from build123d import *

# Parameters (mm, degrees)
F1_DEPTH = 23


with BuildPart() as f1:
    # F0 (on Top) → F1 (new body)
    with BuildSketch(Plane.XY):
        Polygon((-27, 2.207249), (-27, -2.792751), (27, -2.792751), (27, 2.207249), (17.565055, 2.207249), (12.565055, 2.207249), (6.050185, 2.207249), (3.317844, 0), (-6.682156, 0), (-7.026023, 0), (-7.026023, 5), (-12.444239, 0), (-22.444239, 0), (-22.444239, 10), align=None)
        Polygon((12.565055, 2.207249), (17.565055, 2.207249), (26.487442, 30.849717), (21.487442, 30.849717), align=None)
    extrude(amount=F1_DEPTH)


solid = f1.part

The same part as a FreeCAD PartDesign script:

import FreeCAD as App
import Part
import Sketcher

V = App.Vector
Q = App.Units.Quantity


def add_polygon(sketch, points):
    """Adds a closed chain of lines whose ends are joined by coincident constraints."""
    first, n = sketch.GeometryCount, len(points)
    for a, b in zip(points, points[1:] + points[:1]):
        sketch.addGeometry(Part.LineSegment(App.Vector(*a, 0), App.Vector(*b, 0)), False)
    for i in range(n):
        sketch.addConstraint(Sketcher.Constraint("Coincident", first + i, 2, first + (i + 1) % n, 1))

doc = App.newDocument("Part")
body = doc.addObject("PartDesign::Body", "Body")

# Sketch on XY plane
sketch1 = body.newObject("Sketcher::SketchObject", "Sketch")
sketch1.AttachmentSupport = (doc.getObject("XY_Plane"), [""])
sketch1.MapMode = "FlatFace"
add_polygon(sketch1, [(-27, 2.2), (-27, -2.8), (27, -2.8), (27, 2.2), (17.6, 2.2), (26.5, 30.8), (21.5, 30.8), (12.6, 2.2), (6.1, 2.2), (3.3, 0), (-7, 0), (-7, 5), (-12.4, 0), (-22.4, 0), (-22.4, 10)])  # lines 0-14
sketch1.addConstraint([
    Sketcher.Constraint("Vertical", 0),
    Sketcher.Constraint("Horizontal", 1),
    Sketcher.Constraint("Vertical", 2),
    Sketcher.Constraint("Horizontal", 3),
    Sketcher.Constraint("Horizontal", 5),
    Sketcher.Constraint("Horizontal", 7),
    Sketcher.Constraint("Horizontal", 9),
    Sketcher.Constraint("Vertical", 10),
    Sketcher.Constraint("Horizontal", 12),
    Sketcher.Constraint("Vertical", 13),
    Sketcher.Constraint("Symmetric", 2, 2, 14, 2, -2),
    Sketcher.Constraint("PointOnObject", 8, 2, -1),
    Sketcher.Constraint("PointOnObject", 11, 2, -1),
    Sketcher.Constraint("Parallel", 4, 6),
    Sketcher.Constraint("Horizontal", 3, 2, 6, 2),
    Sketcher.Constraint("Equal", 5, 0),
    Sketcher.Constraint("Equal", 2, 10),
    Sketcher.Constraint("Equal", 12, 13),
    Sketcher.Constraint("DistanceX", 1, 1, 1, 2, Q("54 mm")),
    Sketcher.Constraint("DistanceX", 5, 2, 5, 1, Q("5 mm")),
    Sketcher.Constraint("DistanceX", 12, 2, 12, 1, Q("10 mm")),
    Sketcher.Constraint("Distance", 4, Q("29.999999 mm")),
    Sketcher.Constraint("DistanceX", 7, 2, 7, 1, Q("6.51487 mm")),
    Sketcher.Constraint("DistanceX", 3, 2, 3, 1, Q("9.434945 mm")),
    Sketcher.Constraint("DistanceX", 9, 2, 9, 1, Q("10.343867 mm")),
    Sketcher.Constraint("DistanceY", 0, 2, -1, 1, Q("2.792751 mm")),
    Sketcher.Constraint("DistanceX", 11, 2, -1, 1, Q("12.444239 mm")),
    Sketcher.Constraint("DistanceX", 8, 2, 7, 2, Q("2.732341 mm")),
    Sketcher.Constraint("DistanceX", -1, 1, 4, 2, Q("26.487442 mm")),
])
pad1 = body.newObject("PartDesign::Pad", "Pad")
pad1.Profile = sketch1
pad1.Length = 23

doc.recompute()
